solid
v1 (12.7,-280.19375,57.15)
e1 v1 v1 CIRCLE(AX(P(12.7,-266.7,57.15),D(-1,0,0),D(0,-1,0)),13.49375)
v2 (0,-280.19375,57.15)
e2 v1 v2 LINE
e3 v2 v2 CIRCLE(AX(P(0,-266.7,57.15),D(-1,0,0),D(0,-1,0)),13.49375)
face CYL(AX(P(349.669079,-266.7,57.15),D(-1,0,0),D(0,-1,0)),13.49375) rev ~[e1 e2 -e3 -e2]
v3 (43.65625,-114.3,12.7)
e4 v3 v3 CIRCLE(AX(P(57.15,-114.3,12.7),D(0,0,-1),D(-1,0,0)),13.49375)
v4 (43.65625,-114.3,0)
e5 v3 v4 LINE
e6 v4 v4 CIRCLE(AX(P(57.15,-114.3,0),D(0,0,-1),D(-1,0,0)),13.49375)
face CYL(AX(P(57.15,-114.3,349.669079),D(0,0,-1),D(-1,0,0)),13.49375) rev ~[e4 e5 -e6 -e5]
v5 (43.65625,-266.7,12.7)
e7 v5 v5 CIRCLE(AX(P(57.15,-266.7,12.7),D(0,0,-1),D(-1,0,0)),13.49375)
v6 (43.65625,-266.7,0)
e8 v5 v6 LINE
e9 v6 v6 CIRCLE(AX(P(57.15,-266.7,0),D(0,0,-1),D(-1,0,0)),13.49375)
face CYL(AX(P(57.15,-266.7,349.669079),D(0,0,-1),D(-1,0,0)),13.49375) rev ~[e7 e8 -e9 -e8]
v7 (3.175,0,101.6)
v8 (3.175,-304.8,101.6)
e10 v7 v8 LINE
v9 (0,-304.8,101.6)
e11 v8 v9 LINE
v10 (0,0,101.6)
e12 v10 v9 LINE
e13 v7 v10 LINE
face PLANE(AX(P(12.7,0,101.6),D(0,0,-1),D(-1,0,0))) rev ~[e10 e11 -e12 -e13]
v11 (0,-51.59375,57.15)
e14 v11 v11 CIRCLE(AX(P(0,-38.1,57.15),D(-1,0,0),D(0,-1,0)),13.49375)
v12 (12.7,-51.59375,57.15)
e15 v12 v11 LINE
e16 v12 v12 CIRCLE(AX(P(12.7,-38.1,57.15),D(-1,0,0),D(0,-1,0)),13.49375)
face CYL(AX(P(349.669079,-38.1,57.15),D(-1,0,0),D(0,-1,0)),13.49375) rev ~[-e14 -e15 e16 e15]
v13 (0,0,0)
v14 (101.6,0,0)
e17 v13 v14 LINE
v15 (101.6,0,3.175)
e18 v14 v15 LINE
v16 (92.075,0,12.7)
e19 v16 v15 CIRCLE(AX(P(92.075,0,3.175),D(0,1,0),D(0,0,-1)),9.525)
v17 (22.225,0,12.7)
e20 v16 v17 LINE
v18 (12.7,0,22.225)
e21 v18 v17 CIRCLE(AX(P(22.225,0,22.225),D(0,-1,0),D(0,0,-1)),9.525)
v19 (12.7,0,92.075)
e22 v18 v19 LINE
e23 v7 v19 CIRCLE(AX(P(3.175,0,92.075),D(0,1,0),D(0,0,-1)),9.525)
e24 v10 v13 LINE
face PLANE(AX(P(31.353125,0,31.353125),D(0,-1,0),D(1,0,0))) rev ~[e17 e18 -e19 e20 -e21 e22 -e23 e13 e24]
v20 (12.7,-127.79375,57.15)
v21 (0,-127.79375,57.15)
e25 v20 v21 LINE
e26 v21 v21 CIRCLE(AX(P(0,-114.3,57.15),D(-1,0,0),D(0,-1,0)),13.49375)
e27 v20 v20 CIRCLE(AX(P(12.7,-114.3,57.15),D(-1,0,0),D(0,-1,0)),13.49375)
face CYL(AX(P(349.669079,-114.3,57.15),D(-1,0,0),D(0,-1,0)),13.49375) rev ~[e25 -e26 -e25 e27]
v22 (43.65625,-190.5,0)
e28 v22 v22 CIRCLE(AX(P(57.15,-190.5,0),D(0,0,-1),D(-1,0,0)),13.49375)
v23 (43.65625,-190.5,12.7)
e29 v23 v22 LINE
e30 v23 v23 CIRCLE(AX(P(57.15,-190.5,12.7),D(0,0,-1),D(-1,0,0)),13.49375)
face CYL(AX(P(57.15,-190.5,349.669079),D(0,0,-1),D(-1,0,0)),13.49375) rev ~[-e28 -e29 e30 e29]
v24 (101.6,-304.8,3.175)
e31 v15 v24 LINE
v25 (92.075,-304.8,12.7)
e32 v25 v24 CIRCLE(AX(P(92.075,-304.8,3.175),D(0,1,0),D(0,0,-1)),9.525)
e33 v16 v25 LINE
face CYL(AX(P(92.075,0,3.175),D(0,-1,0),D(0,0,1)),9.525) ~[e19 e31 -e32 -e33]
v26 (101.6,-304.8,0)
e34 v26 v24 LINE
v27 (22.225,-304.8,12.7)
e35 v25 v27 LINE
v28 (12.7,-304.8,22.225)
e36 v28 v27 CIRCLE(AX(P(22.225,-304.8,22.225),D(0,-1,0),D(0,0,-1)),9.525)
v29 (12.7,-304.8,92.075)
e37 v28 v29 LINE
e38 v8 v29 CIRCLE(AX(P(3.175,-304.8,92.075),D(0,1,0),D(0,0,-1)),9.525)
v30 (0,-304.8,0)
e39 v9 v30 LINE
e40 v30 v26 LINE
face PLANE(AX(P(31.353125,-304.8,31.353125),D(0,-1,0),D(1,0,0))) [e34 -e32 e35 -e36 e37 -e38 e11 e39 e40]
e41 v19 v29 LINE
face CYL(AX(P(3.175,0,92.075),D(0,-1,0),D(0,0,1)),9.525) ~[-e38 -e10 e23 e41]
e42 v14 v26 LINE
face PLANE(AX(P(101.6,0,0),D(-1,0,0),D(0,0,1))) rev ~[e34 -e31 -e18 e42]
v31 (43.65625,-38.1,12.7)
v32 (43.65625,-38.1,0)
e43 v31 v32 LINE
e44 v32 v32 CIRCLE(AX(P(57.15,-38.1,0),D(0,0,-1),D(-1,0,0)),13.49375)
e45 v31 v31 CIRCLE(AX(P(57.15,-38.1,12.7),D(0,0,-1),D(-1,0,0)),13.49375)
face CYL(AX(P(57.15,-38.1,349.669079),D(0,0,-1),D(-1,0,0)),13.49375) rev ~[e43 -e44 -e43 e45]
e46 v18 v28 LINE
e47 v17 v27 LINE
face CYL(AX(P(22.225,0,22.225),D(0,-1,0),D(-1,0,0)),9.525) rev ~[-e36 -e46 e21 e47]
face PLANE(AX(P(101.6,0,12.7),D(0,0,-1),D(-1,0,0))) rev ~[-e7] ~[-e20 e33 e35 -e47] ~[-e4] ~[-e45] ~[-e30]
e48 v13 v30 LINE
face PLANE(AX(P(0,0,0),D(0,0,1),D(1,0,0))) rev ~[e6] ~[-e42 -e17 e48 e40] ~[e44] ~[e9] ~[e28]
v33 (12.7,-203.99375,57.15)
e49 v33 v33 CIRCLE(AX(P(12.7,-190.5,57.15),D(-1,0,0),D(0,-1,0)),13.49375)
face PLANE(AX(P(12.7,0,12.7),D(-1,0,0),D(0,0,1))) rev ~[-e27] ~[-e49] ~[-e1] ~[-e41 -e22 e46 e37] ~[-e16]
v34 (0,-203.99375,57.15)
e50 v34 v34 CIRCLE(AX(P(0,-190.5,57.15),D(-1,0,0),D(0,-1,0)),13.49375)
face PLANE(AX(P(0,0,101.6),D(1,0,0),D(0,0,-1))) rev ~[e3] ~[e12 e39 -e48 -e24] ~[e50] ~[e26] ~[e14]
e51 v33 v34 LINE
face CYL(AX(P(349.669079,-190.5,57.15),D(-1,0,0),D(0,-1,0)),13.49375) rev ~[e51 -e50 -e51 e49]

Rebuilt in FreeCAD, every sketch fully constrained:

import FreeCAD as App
import Part
import Sketcher

V = App.Vector
Q = App.Units.Quantity


def edges_at(feature, points):
    """Names of the edges that pass closest to the given points."""
    edges = feature.Shape.Edges
    near = lambda p: min(range(len(edges)), key=lambda i: edges[i].distToShape(Part.Vertex(*p))[0])
    return sorted({f"Edge{near(p) + 1}" for p in points})

doc = App.newDocument("Part")
body = doc.addObject("PartDesign::Body", "Body")

sketch1 = doc.addObject("Sketcher::SketchObject", "Sketch")
body.addObject(sketch1)
sketch1.AttachmentSupport = (doc.XZ_Plane, [""])
sketch1.MapMode = "FlatFace"
sketch1.addGeometry(Part.LineSegment(V(13, 102, 0), V(0, 102, 0)), False)
sketch1.addGeometry(Part.LineSegment(V(0, 102, 0), V(0, 0, 0)), False)
sketch1.addGeometry(Part.LineSegment(V(0, 0, 0), V(102, 0, 0)), False)
sketch1.addGeometry(Part.LineSegment(V(102, 0, 0), V(102, 13, 0)), False)
sketch1.addGeometry(Part.LineSegment(V(102, 13, 0), V(13, 13, 0)), False)
sketch1.addGeometry(Part.LineSegment(V(13, 13, 0), V(13, 102, 0)), False)
sketch1.addConstraint(Sketcher.Constraint("Coincident", 0, 2, 1, 1))
sketch1.addConstraint(Sketcher.Constraint("Coincident", 1, 2, 2, 1))
sketch1.addConstraint(Sketcher.Constraint("Coincident", 2, 2, 3, 1))
sketch1.addConstraint(Sketcher.Constraint("Coincident", 3, 2, 4, 1))
sketch1.addConstraint(Sketcher.Constraint("Coincident", 4, 2, 5, 1))
sketch1.addConstraint(Sketcher.Constraint("Coincident", 5, 2, 0, 1))
sketch1.addConstraint(Sketcher.Constraint("Horizontal", 0))
sketch1.addConstraint(Sketcher.Constraint("Vertical", 1))
sketch1.addConstraint(Sketcher.Constraint("Horizontal", 2))
sketch1.addConstraint(Sketcher.Constraint("Vertical", 3))
sketch1.addConstraint(Sketcher.Constraint("Horizontal", 4))
sketch1.addConstraint(Sketcher.Constraint("Vertical", 5))
sketch1.addConstraint(Sketcher.Constraint("Coincident", 1, 2, -1, 1))
sketch1.addConstraint(Sketcher.Constraint("Equal", 2, 1))
sketch1.addConstraint(Sketcher.Constraint("Equal", 0, 3))
sketch1.addConstraint(Sketcher.Constraint("DistanceX", 2, 1, 2, 2, Q("4 in")))
sketch1.addConstraint(Sketcher.Constraint("DistanceX", 0, 2, 0, 1, Q("0.5 in")))
pad1 = doc.addObject("PartDesign::Pad", "Pad")
body.addObject(pad1)
pad1.Profile = sketch1
pad1.Length = Q("12 in")

sketch2 = doc.addObject("Sketcher::SketchObject", "Sketch001")
body.addObject(sketch2)
sketch2.AttachmentSupport = (doc.YZ_Plane, [""])
sketch2.MapMode = "FlatFace"
sketch2.AttachmentOffset = App.Placement(V(0, 0, 0.5 * 25.4), App.Rotation())
sketch2.addGeometry(Part.Circle(V(-267, 57, 0), V(0, 0, 1), 13), False)
sketch2.addGeometry(Part.Circle(V(-190, 57, 0), V(0, 0, 1), 13), False)
sketch2.addGeometry(Part.Circle(V(-114, 57, 0), V(0, 0, 1), 13), False)
sketch2.addGeometry(Part.Circle(V(-38, 57, 0), V(0, 0, 1), 13), False)
sketch2.addConstraint(Sketcher.Constraint("Equal", 0, 1))
sketch2.addConstraint(Sketcher.Constraint("Equal", 1, 2))
sketch2.addConstraint(Sketcher.Constraint("Equal", 2, 3))
sketch2.addConstraint(Sketcher.Constraint("Horizontal", 0, 3, 1, 3))
sketch2.addConstraint(Sketcher.Constraint("Horizontal", 1, 3, 2, 3))
sketch2.addConstraint(Sketcher.Constraint("Horizontal", 2, 3, 3, 3))
sketch2.addConstraint(Sketcher.Constraint("Diameter", 0, Q("1.0625 in")))
sketch2.addConstraint(Sketcher.Constraint("DistanceX", 0, 3, 1, 3, Q("3 in")))
sketch2.addConstraint(Sketcher.Constraint("DistanceX", 1, 3, 2, 3, Q("3 in")))
sketch2.addConstraint(Sketcher.Constraint("DistanceX", 2, 3, 3, 3, Q("3 in")))
sketch2.addConstraint(Sketcher.Constraint("DistanceX", 0, 3, -1, 1, Q("10.5 in")))
sketch2.addConstraint(Sketcher.Constraint("DistanceY", -1, 1, 0, 3, Q("2.25 in")))
doc.recompute()
hole = doc.addObject("PartDesign::Hole", "Hole")
body.addObject(hole)
hole.Profile = sketch2
hole.ThreadType = "None"
hole.Diameter = Q("1.0625 in")
hole.DepthType = "ThroughAll"

sketch3 = doc.addObject("Sketcher::SketchObject", "Sketch002")
body.addObject(sketch3)
sketch3.AttachmentSupport = (doc.XY_Plane, [""])
sketch3.MapMode = "FlatFace"
sketch3.AttachmentOffset = App.Placement(V(0, 0, 0.5 * 25.4), App.Rotation())
sketch3.addGeometry(Part.Circle(V(57, -38, 0), V(0, 0, 1), 13), False)
sketch3.addGeometry(Part.Circle(V(57, -114, 0), V(0, 0, 1), 13), False)
sketch3.addGeometry(Part.Circle(V(57, -190, 0), V(0, 0, 1), 13), False)
sketch3.addGeometry(Part.Circle(V(57, -267, 0), V(0, 0, 1), 13), False)
sketch3.addConstraint(Sketcher.Constraint("Equal", 0, 1))
sketch3.addConstraint(Sketcher.Constraint("Equal", 1, 2))
sketch3.addConstraint(Sketcher.Constraint("Equal", 2, 3))
sketch3.addConstraint(Sketcher.Constraint("Vertical", 0, 3, 1, 3))
sketch3.addConstraint(Sketcher.Constraint("Vertical", 1, 3, 2, 3))
sketch3.addConstraint(Sketcher.Constraint("Vertical", 2, 3, 3, 3))
sketch3.addConstraint(Sketcher.Constraint("Diameter", 0, Q("1.0625 in")))
sketch3.addConstraint(Sketcher.Constraint("DistanceY", 1, 3, 0, 3, Q("3 in")))
sketch3.addConstraint(Sketcher.Constraint("DistanceY", 2, 3, 1, 3, Q("3 in")))
sketch3.addConstraint(Sketcher.Constraint("DistanceY", 3, 3, 2, 3, Q("3 in")))
sketch3.addConstraint(Sketcher.Constraint("DistanceY", 0, 3, -1, 1, Q("1.5 in")))
sketch3.addConstraint(Sketcher.Constraint("DistanceX", -1, 1, 0, 3, Q("2.25 in")))
doc.recompute()
hole2 = doc.addObject("PartDesign::Hole", "Hole001")
body.addObject(hole2)
hole2.Profile = sketch3
hole2.ThreadType = "None"
hole2.Diameter = Q("1.0625 in")
hole2.DepthType = "ThroughAll"
doc.recompute()

fillet = doc.addObject("PartDesign::Fillet", "Fillet")
body.addObject(fillet)
fillet.Base = (hole2, edges_at(hole2, [(12.7, -152.4, 101.6), (12.7, -152.4, 12.7), (101.6, -152.4, 12.7)]))
fillet.Radius = Q("0.375 in")

doc.recompute()
